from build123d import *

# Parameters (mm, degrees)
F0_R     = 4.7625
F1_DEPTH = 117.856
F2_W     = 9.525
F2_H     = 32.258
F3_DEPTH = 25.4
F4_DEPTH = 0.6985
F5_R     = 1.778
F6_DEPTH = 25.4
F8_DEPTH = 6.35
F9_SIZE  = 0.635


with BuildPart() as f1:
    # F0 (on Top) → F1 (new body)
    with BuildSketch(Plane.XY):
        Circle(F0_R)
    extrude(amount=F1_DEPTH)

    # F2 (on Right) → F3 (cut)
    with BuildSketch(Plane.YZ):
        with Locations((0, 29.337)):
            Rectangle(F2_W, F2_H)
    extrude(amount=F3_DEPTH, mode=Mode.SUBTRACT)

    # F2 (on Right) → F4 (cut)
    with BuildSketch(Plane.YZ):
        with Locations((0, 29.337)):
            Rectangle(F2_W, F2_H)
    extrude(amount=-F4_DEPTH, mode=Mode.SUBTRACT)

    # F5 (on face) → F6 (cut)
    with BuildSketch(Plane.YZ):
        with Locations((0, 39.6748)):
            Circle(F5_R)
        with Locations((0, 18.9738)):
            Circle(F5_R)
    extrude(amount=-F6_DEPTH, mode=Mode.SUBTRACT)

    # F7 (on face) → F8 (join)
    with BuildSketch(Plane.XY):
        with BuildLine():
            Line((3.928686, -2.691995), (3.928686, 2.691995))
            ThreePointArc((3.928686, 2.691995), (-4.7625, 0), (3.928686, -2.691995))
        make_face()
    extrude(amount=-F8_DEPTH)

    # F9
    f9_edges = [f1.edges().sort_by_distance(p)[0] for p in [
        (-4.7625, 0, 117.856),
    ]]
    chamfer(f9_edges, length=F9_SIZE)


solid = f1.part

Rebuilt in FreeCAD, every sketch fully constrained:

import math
import FreeCAD as App
import Part
import Sketcher
Q = App.Units.Quantity


def edges_at(feature, points):
    """Names of the edges that pass closest to the given points."""
    edges = feature.Shape.Edges
    near = lambda p: min(range(len(edges)), key=lambda i: edges[i].distToShape(Part.Vertex(*p))[0])
    return sorted({f"Edge{near(p) + 1}" for p in points})

doc = App.newDocument("Part")
params = doc.addObject("Spreadsheet::Sheet", "Params")
for row, (alias, value) in enumerate([
    ("sketch1_diameter", "0.375 in"),
    ("pad1_length", "4.64 in"),
    ("sketch2_height", "1.27 in"),
    ("sketch2_width", "0.375 in"),
    ("pocket1_length", "1 in"),
    ("sketch3_height", "1.27 in"),
    ("sketch3_width", "0.375 in"),
    ("pocket2_length", "0.0275 in"),
    ("sketch4_diameter", "0.14 in"),
    ("pocket3_length", "1 in"),
    ("sketch5_radius", "0.1875 in"),
    ("pad2_length", "0.25 in"),
    ("chamfer_size", "0.025 in"),
], start=1):
    params.set(f"A{row}", alias)
    params.set(f"B{row}", "=" + value)
    params.setAlias(f"B{row}", alias)

body = doc.addObject("PartDesign::Body", "Body")

sketch1 = body.newObject("Sketcher::SketchObject", "Sketch")
sketch1.AttachmentSupport = (doc.getObject("XY_Plane"), [""])
sketch1.MapMode = "FlatFace"
sketch1.addGeometry(Part.Circle(App.Vector(0, 0, 0), App.Vector(0, 0, 1), 4.8), False)
sketch1.addConstraint([
    Sketcher.Constraint("Coincident", 0, 3, -1, 1),
    Sketcher.Constraint("Diameter", 0, Q("0.375 in")),
])
sketch1.setExpression("Constraints[1]", "Params.sketch1_diameter")
pad1 = body.newObject("PartDesign::Pad", "Pad")
pad1.Profile = sketch1
pad1.setExpression("Length", "Params.pad1_length")

sketch2 = body.newObject("Sketcher::SketchObject", "Sketch001")
sketch2.AttachmentSupport = (doc.getObject("YZ_Plane"), [""])
sketch2.MapMode = "FlatFace"
sketch2.addGeometry([
    Part.LineSegment(App.Vector(-5, 45, 0), App.Vector(-5, 13, 0)),
    Part.LineSegment(App.Vector(-5, 13, 0), App.Vector(5, 13, 0)),
    Part.LineSegment(App.Vector(5, 13, 0), App.Vector(5, 45, 0)),
    Part.LineSegment(App.Vector(5, 45, 0), App.Vector(-5, 45, 0)),
], False)
sketch2.addConstraint([
    Sketcher.Constraint("Coincident", 0, 2, 1, 1),
    Sketcher.Constraint("Coincident", 1, 2, 2, 1),
    Sketcher.Constraint("Coincident", 2, 2, 3, 1),
    Sketcher.Constraint("Coincident", 3, 2, 0, 1),
    Sketcher.Constraint("Vertical", 0),
    Sketcher.Constraint("Horizontal", 1),
    Sketcher.Constraint("Vertical", 2),
    Sketcher.Constraint("Horizontal", 3),
    Sketcher.Constraint("DistanceY", 0, 2, 0, 1, Q("1.27 in")),
    Sketcher.Constraint("DistanceX", 1, 1, 1, 2, Q("0.375 in")),
    Sketcher.Constraint("DistanceY", -1, 1, 0, 2, Q("0.52 in")),
    Sketcher.Constraint("DistanceX", 0, 2, -1, 1, Q("0.1875 in")),
])
sketch2.setExpression("Constraints[8]", "Params.sketch2_height")
sketch2.setExpression("Constraints[9]", "Params.sketch2_width")
pocket1 = body.newObject("PartDesign::Pocket", "Pocket")
pocket1.Profile = sketch2
pocket1.setExpression("Length", "Params.pocket1_length")
pocket1.Reversed = True

sketch3 = body.newObject("Sketcher::SketchObject", "Sketch002")
sketch3.AttachmentSupport = (doc.getObject("YZ_Plane"), [""])
sketch3.MapMode = "FlatFace"
sketch3.addGeometry([
    Part.LineSegment(App.Vector(-5, 45, 0), App.Vector(-5, 13, 0)),
    Part.LineSegment(App.Vector(-5, 13, 0), App.Vector(5, 13, 0)),
    Part.LineSegment(App.Vector(5, 13, 0), App.Vector(5, 45, 0)),
    Part.LineSegment(App.Vector(5, 45, 0), App.Vector(-5, 45, 0)),
], False)
sketch3.addConstraint([
    Sketcher.Constraint("Coincident", 0, 2, 1, 1),
    Sketcher.Constraint("Coincident", 1, 2, 2, 1),
    Sketcher.Constraint("Coincident", 2, 2, 3, 1),
    Sketcher.Constraint("Coincident", 3, 2, 0, 1),
    Sketcher.Constraint("Vertical", 0),
    Sketcher.Constraint("Horizontal", 1),
    Sketcher.Constraint("Vertical", 2),
    Sketcher.Constraint("Horizontal", 3),
    Sketcher.Constraint("DistanceY", 0, 2, 0, 1, Q("1.27 in")),
    Sketcher.Constraint("DistanceX", 1, 1, 1, 2, Q("0.375 in")),
    Sketcher.Constraint("DistanceY", -1, 1, 0, 2, Q("0.52 in")),
    Sketcher.Constraint("DistanceX", 0, 2, -1, 1, Q("0.1875 in")),
])
sketch3.setExpression("Constraints[8]", "Params.sketch3_height")
sketch3.setExpression("Constraints[9]", "Params.sketch3_width")
pocket2 = body.newObject("PartDesign::Pocket", "Pocket001")
pocket2.Profile = sketch3
pocket2.setExpression("Length", "Params.pocket2_length")

sketch4 = body.newObject("Sketcher::SketchObject", "Sketch003")
sketch4.AttachmentSupport = (doc.getObject("YZ_Plane"), [""])
sketch4.MapMode = "FlatFace"
sketch4.addGeometry([
    Part.Circle(App.Vector(0, 39.7, 0), App.Vector(0, 0, 1), 1.8),
    Part.Circle(App.Vector(0, 19, 0), App.Vector(0, 0, 1), 1.8),
], False)
sketch4.addConstraint([
    Sketcher.Constraint("Equal", 0, 1),
    Sketcher.Constraint("PointOnObject", 0, 3, -2),
    Sketcher.Constraint("PointOnObject", 1, 3, -2),
    Sketcher.Constraint("Diameter", 0, Q("0.14 in")),
    Sketcher.Constraint("DistanceY", -1, 1, 0, 3, Q("1.562 in")),
    Sketcher.Constraint("DistanceY", -1, 1, 1, 3, Q("0.747 in")),
])
sketch4.setExpression("Constraints[3]", "Params.sketch4_diameter")
pocket3 = body.newObject("PartDesign::Pocket", "Pocket002")
pocket3.Profile = sketch4
pocket3.setExpression("Length", "Params.pocket3_length")

sketch5 = body.newObject("Sketcher::SketchObject", "Sketch004")
sketch5.AttachmentSupport = (doc.getObject("XY_Plane"), [""])
sketch5.MapMode = "FlatFace"
sketch5.addGeometry([
    Part.LineSegment(App.Vector(3.9, -2.7, 0), App.Vector(3.9, 2.7, 0)),
    Part.ArcOfCircle(Part.Circle(App.Vector(0, 0, 0), App.Vector(0, 0, 1), 4.8), math.radians(34), math.radians(326)),
], False)
sketch5.addConstraint([
    Sketcher.Constraint("Coincident", 0, 1, 1, 2),
    Sketcher.Constraint("Coincident", 1, 1, 0, 2),
    Sketcher.Constraint("Vertical", 0),
    Sketcher.Constraint("Coincident", 1, 3, -1, 1),
    Sketcher.Constraint("Radius", 1, Q("0.1875 in")),
    Sketcher.Constraint("DistanceY", 0, 1, 0, 2, 5.38399),
])
sketch5.setExpression("Constraints[4]", "Params.sketch5_radius")
pad2 = body.newObject("PartDesign::Pad", "Pad001")
pad2.Profile = sketch5
pad2.setExpression("Length", "Params.pad2_length")
pad2.Reversed = True
doc.recompute()

chamfer = body.newObject("PartDesign::Chamfer", "Chamfer")
chamfer.Base = (pad2, edges_at(pad2, [(-4.763, 0, 117.856)]))
chamfer.setExpression("Size", "Params.chamfer_size")

doc.recompute()
